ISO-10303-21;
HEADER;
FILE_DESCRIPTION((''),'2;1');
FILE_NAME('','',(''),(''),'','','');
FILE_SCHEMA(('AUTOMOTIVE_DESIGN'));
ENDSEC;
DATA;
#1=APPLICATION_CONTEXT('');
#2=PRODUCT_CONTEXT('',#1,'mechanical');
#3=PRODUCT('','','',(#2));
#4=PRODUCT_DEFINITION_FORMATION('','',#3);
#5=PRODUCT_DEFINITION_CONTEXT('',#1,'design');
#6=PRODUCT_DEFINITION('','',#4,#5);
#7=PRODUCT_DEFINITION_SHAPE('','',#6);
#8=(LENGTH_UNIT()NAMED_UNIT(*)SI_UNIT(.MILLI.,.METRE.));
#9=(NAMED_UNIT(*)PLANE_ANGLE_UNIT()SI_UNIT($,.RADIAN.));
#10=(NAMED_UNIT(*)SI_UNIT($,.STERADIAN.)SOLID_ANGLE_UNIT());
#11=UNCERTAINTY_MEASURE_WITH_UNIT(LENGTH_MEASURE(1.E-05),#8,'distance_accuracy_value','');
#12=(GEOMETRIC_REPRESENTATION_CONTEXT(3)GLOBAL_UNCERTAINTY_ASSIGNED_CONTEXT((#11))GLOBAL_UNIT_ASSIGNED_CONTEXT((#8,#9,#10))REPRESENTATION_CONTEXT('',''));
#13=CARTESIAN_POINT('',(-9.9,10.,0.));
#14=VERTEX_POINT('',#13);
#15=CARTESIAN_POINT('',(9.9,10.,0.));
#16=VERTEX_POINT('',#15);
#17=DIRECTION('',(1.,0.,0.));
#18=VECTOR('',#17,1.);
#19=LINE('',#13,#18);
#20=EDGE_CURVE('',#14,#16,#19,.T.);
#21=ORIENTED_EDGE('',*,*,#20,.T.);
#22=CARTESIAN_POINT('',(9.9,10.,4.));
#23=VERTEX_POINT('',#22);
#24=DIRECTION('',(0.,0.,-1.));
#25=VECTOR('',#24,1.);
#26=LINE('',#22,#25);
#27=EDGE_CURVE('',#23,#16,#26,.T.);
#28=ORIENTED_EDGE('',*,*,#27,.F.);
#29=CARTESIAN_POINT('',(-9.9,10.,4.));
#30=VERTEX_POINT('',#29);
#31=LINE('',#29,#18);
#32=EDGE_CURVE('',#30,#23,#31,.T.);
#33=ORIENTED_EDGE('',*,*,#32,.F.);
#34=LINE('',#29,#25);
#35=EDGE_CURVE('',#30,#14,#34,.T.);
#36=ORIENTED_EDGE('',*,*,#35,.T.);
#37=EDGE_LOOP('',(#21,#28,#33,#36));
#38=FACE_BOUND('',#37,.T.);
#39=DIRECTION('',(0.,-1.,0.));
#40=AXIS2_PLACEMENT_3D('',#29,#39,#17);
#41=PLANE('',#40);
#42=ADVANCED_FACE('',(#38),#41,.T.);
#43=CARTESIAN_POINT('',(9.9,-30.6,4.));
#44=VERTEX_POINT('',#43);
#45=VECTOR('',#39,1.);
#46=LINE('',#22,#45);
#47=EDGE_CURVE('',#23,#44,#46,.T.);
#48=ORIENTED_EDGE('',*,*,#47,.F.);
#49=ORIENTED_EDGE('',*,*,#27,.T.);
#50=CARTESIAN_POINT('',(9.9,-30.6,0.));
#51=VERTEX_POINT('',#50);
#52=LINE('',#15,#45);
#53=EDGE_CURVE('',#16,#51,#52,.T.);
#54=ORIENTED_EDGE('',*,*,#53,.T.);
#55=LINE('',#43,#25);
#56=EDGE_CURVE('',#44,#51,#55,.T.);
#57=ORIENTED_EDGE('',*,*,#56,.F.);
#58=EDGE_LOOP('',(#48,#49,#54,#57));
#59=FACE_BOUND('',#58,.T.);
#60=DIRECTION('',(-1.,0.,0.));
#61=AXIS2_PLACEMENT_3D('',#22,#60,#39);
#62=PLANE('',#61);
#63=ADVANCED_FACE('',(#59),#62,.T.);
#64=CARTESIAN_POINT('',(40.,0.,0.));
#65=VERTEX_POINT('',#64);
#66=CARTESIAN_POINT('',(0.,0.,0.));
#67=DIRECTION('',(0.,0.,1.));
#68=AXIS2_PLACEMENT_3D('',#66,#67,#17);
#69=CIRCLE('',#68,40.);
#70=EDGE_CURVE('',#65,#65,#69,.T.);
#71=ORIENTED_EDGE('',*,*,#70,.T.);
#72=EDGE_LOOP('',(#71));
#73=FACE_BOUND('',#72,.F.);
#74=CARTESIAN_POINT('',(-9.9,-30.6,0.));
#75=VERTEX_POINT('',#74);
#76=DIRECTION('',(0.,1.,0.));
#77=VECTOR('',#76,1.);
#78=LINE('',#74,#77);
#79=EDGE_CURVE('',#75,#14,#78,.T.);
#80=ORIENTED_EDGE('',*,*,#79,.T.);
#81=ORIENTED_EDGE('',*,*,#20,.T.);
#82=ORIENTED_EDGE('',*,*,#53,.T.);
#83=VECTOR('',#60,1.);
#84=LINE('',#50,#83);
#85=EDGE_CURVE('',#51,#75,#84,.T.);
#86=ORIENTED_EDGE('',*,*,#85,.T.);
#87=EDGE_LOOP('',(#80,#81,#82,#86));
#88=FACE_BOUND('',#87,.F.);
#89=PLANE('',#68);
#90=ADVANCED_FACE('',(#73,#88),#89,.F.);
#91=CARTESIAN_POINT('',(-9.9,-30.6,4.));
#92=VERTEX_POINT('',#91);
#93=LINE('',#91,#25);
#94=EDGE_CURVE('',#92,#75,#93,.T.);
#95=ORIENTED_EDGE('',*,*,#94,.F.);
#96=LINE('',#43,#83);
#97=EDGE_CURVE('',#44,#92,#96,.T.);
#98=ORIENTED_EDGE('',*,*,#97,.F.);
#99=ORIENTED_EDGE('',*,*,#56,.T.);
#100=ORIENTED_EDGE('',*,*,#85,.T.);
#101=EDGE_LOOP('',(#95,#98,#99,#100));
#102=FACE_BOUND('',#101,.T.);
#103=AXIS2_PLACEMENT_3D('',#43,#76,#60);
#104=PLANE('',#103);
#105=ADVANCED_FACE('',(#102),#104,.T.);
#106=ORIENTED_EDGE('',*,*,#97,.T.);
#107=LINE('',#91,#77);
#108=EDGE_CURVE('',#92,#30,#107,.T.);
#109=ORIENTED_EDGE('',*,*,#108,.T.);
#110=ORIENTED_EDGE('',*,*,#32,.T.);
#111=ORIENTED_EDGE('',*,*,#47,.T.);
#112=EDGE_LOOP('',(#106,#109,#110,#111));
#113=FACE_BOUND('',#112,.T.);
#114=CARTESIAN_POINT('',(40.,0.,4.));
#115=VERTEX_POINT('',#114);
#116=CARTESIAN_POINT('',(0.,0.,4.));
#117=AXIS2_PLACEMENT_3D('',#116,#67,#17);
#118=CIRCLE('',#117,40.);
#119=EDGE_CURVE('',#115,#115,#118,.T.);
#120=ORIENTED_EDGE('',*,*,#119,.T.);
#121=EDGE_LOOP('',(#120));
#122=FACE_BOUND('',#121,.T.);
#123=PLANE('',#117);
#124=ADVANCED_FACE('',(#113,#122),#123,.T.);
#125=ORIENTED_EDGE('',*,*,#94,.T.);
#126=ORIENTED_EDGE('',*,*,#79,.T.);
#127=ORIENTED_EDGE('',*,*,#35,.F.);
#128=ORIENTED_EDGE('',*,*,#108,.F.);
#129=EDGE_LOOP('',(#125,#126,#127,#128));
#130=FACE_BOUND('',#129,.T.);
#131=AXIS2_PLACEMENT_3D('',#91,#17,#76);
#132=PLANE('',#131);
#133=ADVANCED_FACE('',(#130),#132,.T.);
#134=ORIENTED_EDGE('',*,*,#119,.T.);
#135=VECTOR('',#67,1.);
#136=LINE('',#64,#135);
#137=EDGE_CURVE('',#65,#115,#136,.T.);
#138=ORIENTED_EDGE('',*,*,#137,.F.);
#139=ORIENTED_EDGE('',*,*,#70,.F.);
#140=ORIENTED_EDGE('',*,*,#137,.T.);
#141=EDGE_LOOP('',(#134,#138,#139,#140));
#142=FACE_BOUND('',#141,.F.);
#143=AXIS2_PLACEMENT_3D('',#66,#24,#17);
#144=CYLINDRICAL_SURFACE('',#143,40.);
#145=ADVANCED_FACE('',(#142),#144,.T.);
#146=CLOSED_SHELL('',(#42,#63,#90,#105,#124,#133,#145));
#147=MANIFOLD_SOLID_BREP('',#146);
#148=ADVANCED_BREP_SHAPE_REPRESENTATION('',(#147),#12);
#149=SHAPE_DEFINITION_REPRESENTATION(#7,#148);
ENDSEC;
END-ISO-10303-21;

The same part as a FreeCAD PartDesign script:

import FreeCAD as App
import Part
import Sketcher


def add_polygon(sketch, points):
    """Adds a closed chain of lines whose ends are joined by coincident constraints."""
    first, n = sketch.GeometryCount, len(points)
    for a, b in zip(points, points[1:] + points[:1]):
        sketch.addGeometry(Part.LineSegment(App.Vector(*a, 0), App.Vector(*b, 0)), False)
    for i in range(n):
        sketch.addConstraint(Sketcher.Constraint("Coincident", first + i, 2, first + (i + 1) % n, 1))

doc = App.newDocument("Part")
params = doc.addObject("Spreadsheet::Sheet", "Params")
for row, (alias, value) in enumerate([
    ("sketch1_diameter", "80 mm"),
    ("sketch1_diameter2", "10.75 mm"),
    ("pad1_length", "4 mm"),
    ("sketch2_width", "19.8 mm"),
    ("sketch2_height", "40.6 mm"),
    ("sketch2_diameter", "10.75 mm"),
    ("pocket1_length", "4 mm"),
], start=1):
    params.set(f"A{row}", alias)
    params.set(f"B{row}", "=" + value)
    params.setAlias(f"B{row}", alias)

body = doc.addObject("PartDesign::Body", "Body")

sketch1 = body.newObject("Sketcher::SketchObject", "Sketch")
sketch1.AttachmentSupport = (doc.getObject("XY_Plane"), [""])
sketch1.MapMode = "FlatFace"
sketch1.addGeometry(Part.Circle(App.Vector(0, 0, 0), App.Vector(0, 0, 1), 40), False)
sketch1.addGeometry(Part.Circle(App.Vector(0, 0, 0), App.Vector(0, 0, 1), 5), False)
sketch1.addConstraint(Sketcher.Constraint("Coincident", 0, 3, -1, 1))
sketch1.addConstraint(Sketcher.Constraint("Coincident", 1, 3, -1, 1))
sketch1.addConstraint(Sketcher.Constraint("Diameter", 0, 80.0))
sketch1.addConstraint(Sketcher.Constraint("Diameter", 1, 10.75))
sketch1.setExpression("Constraints[2]", "Params.sketch1_diameter")
sketch1.setExpression("Constraints[3]", "Params.sketch1_diameter2")
pad1 = body.newObject("PartDesign::Pad", "Pad")
pad1.Profile = sketch1
pad1.setExpression("Length", "Params.pad1_length")

sketch2 = body.newObject("Sketcher::SketchObject", "Sketch001")
sketch2.AttachmentSupport = (doc.getObject("XY_Plane"), [""])
sketch2.MapMode = "FlatFace"
sketch2.AttachmentOffset = App.Placement(App.Vector(0, 0, 4), App.Rotation())
add_polygon(sketch2, [(10, 10), (-10, 10), (-10, -31), (10, -31)])
sketch2.addGeometry(Part.Circle(App.Vector(0, 0, 0), App.Vector(0, 0, 1), 5), False)
sketch2.addConstraint(Sketcher.Constraint("Horizontal", 0))
sketch2.addConstraint(Sketcher.Constraint("Vertical", 1))
sketch2.addConstraint(Sketcher.Constraint("Horizontal", 2))
sketch2.addConstraint(Sketcher.Constraint("Vertical", 3))
sketch2.addConstraint(Sketcher.Constraint("Coincident", 4, 3, -1, 1))
sketch2.addConstraint(Sketcher.Constraint("DistanceX", 0, 2, 0, 1, 19.8))
sketch2.addConstraint(Sketcher.Constraint("DistanceY", 1, 2, 1, 1, 40.6))
sketch2.addConstraint(Sketcher.Constraint("DistanceY", -1, 1, 0, 2, 10.0))
sketch2.addConstraint(Sketcher.Constraint("DistanceX", 0, 2, -1, 1, 9.9))
sketch2.addConstraint(Sketcher.Constraint("Diameter", 4, 10.75))
sketch2.setExpression("Constraints[9]", "Params.sketch2_width")
sketch2.setExpression("Constraints[10]", "Params.sketch2_height")
sketch2.setExpression("Constraints[13]", "Params.sketch2_diameter")
pocket1 = body.newObject("PartDesign::Pocket", "Pocket")
pocket1.Profile = sketch2
pocket1.setExpression("Length", "Params.pocket1_length")

doc.recompute()
